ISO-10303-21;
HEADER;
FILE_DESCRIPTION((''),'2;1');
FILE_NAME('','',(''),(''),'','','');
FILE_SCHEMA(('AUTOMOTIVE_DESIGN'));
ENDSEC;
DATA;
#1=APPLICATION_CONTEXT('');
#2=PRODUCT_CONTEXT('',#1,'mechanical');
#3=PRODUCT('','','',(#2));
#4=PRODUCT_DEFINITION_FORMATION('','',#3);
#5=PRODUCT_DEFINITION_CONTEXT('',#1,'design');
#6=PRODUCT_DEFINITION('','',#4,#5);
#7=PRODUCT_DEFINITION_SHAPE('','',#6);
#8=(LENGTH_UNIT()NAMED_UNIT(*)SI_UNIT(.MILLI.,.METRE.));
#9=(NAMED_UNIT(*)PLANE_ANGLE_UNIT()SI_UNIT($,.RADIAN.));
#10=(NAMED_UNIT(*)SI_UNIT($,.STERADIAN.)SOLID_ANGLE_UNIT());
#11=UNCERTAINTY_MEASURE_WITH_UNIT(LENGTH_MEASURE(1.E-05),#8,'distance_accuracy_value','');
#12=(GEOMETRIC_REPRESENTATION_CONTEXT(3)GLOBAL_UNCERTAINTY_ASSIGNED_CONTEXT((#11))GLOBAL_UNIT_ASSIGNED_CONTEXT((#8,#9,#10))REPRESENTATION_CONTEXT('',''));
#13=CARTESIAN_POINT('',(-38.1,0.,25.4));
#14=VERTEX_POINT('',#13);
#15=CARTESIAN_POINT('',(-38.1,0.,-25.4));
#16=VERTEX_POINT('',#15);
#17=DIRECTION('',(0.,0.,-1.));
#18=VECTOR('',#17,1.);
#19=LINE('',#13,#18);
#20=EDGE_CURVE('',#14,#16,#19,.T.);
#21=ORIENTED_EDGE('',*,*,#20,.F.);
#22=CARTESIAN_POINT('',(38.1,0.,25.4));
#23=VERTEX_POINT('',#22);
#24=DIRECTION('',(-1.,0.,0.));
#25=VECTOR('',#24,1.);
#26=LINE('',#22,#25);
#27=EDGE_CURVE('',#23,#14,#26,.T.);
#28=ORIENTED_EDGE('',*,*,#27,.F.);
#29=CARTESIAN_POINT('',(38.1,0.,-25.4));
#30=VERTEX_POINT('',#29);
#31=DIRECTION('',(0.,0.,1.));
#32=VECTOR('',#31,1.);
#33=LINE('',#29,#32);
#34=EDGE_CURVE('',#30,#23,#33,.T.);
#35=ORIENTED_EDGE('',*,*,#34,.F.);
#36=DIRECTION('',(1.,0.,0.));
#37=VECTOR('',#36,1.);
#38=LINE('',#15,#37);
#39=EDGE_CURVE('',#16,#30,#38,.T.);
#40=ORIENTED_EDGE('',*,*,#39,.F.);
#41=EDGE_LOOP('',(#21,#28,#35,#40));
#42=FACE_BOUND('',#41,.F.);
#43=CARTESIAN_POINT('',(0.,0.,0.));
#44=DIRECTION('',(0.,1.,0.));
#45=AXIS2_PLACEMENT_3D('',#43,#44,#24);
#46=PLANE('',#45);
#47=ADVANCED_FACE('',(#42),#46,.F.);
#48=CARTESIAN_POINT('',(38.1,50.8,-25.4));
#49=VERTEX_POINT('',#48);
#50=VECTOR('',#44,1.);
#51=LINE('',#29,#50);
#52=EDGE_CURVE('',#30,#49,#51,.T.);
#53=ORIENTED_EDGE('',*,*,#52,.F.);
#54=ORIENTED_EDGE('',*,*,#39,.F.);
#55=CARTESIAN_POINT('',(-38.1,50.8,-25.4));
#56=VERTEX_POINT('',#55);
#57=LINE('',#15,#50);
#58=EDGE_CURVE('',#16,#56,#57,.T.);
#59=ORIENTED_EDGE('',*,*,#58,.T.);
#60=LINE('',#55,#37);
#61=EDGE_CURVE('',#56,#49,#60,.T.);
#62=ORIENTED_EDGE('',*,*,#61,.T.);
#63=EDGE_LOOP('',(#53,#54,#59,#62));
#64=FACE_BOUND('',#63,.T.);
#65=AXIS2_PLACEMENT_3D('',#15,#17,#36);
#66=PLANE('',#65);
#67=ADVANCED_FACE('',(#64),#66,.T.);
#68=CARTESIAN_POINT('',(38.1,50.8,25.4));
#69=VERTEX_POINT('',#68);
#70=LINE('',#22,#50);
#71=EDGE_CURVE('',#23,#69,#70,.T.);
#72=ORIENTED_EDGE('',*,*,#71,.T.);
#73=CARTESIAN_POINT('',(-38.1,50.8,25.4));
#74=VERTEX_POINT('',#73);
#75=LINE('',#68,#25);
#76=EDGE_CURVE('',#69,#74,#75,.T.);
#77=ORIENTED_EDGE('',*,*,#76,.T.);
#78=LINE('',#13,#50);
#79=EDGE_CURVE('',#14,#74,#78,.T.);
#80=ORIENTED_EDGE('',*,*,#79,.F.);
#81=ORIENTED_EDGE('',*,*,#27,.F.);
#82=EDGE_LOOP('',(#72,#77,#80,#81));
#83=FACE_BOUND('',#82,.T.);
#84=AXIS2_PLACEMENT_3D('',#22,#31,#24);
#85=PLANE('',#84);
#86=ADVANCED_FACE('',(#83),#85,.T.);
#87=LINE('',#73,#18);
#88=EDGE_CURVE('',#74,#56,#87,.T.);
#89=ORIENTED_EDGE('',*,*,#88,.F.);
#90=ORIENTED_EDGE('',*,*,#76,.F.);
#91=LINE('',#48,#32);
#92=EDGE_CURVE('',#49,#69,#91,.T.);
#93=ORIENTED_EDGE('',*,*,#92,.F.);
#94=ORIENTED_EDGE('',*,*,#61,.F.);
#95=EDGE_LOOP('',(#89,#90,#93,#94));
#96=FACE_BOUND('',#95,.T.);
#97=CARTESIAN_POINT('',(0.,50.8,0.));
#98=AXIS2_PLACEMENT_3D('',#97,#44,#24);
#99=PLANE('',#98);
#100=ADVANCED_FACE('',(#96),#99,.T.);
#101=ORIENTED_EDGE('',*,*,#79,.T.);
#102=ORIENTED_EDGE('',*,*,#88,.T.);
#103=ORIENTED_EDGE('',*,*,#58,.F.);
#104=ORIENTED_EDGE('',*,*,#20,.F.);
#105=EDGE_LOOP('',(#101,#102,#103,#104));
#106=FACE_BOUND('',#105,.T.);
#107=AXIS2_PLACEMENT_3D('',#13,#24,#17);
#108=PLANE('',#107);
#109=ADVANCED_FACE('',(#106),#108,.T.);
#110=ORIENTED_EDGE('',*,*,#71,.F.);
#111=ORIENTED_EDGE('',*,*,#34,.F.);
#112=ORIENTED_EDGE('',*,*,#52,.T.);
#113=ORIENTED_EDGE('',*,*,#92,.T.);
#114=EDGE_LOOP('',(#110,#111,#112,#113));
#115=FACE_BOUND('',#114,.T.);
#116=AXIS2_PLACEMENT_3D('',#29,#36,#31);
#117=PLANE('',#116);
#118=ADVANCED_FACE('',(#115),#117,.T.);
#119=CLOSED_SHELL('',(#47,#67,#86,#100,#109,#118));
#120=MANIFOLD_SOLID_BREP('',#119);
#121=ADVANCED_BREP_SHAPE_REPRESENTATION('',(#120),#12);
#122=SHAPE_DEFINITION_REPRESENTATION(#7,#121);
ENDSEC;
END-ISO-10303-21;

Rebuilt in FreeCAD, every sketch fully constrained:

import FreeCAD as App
import Part
import Sketcher
Q = App.Units.Quantity

doc = App.newDocument("Part")
body = doc.addObject("PartDesign::Body", "Body")

sketch1 = body.newObject("Sketcher::SketchObject", "Sketch")
sketch1.AttachmentSupport = (doc.getObject("XZ_Plane"), [""])
sketch1.MapMode = "FlatFace"
sketch1.addGeometry(Part.LineSegment(App.Vector(-38, 25, 0), App.Vector(38, 25, 0)), False)
sketch1.addGeometry(Part.LineSegment(App.Vector(38, 25, 0), App.Vector(38, -25, 0)), False)
sketch1.addGeometry(Part.LineSegment(App.Vector(38, -25, 0), App.Vector(-38, -25, 0)), False)
sketch1.addGeometry(Part.LineSegment(App.Vector(-38, -25, 0), App.Vector(-38, 25, 0)), False)
sketch1.addConstraint(Sketcher.Constraint("Coincident", 0, 2, 1, 1))
sketch1.addConstraint(Sketcher.Constraint("Coincident", 1, 2, 2, 1))
sketch1.addConstraint(Sketcher.Constraint("Coincident", 2, 2, 3, 1))
sketch1.addConstraint(Sketcher.Constraint("Coincident", 3, 2, 0, 1))
sketch1.addConstraint(Sketcher.Constraint("Horizontal", 0))
sketch1.addConstraint(Sketcher.Constraint("Vertical", 1))
sketch1.addConstraint(Sketcher.Constraint("Horizontal", 2))
sketch1.addConstraint(Sketcher.Constraint("Vertical", 3))
sketch1.addConstraint(Sketcher.Constraint("Symmetric", 0, 2, 2, 2, -1, 1))
sketch1.addConstraint(Sketcher.Constraint("DistanceX", 0, 1, 0, 2, Q("3 in")))
sketch1.addConstraint(Sketcher.Constraint("DistanceY", 1, 2, 1, 1, Q("2 in")))
pad1 = body.newObject("PartDesign::Pad", "Pad")
pad1.Profile = sketch1
pad1.Length = Q("2 in")
pad1.Reversed = True

doc.recompute()
